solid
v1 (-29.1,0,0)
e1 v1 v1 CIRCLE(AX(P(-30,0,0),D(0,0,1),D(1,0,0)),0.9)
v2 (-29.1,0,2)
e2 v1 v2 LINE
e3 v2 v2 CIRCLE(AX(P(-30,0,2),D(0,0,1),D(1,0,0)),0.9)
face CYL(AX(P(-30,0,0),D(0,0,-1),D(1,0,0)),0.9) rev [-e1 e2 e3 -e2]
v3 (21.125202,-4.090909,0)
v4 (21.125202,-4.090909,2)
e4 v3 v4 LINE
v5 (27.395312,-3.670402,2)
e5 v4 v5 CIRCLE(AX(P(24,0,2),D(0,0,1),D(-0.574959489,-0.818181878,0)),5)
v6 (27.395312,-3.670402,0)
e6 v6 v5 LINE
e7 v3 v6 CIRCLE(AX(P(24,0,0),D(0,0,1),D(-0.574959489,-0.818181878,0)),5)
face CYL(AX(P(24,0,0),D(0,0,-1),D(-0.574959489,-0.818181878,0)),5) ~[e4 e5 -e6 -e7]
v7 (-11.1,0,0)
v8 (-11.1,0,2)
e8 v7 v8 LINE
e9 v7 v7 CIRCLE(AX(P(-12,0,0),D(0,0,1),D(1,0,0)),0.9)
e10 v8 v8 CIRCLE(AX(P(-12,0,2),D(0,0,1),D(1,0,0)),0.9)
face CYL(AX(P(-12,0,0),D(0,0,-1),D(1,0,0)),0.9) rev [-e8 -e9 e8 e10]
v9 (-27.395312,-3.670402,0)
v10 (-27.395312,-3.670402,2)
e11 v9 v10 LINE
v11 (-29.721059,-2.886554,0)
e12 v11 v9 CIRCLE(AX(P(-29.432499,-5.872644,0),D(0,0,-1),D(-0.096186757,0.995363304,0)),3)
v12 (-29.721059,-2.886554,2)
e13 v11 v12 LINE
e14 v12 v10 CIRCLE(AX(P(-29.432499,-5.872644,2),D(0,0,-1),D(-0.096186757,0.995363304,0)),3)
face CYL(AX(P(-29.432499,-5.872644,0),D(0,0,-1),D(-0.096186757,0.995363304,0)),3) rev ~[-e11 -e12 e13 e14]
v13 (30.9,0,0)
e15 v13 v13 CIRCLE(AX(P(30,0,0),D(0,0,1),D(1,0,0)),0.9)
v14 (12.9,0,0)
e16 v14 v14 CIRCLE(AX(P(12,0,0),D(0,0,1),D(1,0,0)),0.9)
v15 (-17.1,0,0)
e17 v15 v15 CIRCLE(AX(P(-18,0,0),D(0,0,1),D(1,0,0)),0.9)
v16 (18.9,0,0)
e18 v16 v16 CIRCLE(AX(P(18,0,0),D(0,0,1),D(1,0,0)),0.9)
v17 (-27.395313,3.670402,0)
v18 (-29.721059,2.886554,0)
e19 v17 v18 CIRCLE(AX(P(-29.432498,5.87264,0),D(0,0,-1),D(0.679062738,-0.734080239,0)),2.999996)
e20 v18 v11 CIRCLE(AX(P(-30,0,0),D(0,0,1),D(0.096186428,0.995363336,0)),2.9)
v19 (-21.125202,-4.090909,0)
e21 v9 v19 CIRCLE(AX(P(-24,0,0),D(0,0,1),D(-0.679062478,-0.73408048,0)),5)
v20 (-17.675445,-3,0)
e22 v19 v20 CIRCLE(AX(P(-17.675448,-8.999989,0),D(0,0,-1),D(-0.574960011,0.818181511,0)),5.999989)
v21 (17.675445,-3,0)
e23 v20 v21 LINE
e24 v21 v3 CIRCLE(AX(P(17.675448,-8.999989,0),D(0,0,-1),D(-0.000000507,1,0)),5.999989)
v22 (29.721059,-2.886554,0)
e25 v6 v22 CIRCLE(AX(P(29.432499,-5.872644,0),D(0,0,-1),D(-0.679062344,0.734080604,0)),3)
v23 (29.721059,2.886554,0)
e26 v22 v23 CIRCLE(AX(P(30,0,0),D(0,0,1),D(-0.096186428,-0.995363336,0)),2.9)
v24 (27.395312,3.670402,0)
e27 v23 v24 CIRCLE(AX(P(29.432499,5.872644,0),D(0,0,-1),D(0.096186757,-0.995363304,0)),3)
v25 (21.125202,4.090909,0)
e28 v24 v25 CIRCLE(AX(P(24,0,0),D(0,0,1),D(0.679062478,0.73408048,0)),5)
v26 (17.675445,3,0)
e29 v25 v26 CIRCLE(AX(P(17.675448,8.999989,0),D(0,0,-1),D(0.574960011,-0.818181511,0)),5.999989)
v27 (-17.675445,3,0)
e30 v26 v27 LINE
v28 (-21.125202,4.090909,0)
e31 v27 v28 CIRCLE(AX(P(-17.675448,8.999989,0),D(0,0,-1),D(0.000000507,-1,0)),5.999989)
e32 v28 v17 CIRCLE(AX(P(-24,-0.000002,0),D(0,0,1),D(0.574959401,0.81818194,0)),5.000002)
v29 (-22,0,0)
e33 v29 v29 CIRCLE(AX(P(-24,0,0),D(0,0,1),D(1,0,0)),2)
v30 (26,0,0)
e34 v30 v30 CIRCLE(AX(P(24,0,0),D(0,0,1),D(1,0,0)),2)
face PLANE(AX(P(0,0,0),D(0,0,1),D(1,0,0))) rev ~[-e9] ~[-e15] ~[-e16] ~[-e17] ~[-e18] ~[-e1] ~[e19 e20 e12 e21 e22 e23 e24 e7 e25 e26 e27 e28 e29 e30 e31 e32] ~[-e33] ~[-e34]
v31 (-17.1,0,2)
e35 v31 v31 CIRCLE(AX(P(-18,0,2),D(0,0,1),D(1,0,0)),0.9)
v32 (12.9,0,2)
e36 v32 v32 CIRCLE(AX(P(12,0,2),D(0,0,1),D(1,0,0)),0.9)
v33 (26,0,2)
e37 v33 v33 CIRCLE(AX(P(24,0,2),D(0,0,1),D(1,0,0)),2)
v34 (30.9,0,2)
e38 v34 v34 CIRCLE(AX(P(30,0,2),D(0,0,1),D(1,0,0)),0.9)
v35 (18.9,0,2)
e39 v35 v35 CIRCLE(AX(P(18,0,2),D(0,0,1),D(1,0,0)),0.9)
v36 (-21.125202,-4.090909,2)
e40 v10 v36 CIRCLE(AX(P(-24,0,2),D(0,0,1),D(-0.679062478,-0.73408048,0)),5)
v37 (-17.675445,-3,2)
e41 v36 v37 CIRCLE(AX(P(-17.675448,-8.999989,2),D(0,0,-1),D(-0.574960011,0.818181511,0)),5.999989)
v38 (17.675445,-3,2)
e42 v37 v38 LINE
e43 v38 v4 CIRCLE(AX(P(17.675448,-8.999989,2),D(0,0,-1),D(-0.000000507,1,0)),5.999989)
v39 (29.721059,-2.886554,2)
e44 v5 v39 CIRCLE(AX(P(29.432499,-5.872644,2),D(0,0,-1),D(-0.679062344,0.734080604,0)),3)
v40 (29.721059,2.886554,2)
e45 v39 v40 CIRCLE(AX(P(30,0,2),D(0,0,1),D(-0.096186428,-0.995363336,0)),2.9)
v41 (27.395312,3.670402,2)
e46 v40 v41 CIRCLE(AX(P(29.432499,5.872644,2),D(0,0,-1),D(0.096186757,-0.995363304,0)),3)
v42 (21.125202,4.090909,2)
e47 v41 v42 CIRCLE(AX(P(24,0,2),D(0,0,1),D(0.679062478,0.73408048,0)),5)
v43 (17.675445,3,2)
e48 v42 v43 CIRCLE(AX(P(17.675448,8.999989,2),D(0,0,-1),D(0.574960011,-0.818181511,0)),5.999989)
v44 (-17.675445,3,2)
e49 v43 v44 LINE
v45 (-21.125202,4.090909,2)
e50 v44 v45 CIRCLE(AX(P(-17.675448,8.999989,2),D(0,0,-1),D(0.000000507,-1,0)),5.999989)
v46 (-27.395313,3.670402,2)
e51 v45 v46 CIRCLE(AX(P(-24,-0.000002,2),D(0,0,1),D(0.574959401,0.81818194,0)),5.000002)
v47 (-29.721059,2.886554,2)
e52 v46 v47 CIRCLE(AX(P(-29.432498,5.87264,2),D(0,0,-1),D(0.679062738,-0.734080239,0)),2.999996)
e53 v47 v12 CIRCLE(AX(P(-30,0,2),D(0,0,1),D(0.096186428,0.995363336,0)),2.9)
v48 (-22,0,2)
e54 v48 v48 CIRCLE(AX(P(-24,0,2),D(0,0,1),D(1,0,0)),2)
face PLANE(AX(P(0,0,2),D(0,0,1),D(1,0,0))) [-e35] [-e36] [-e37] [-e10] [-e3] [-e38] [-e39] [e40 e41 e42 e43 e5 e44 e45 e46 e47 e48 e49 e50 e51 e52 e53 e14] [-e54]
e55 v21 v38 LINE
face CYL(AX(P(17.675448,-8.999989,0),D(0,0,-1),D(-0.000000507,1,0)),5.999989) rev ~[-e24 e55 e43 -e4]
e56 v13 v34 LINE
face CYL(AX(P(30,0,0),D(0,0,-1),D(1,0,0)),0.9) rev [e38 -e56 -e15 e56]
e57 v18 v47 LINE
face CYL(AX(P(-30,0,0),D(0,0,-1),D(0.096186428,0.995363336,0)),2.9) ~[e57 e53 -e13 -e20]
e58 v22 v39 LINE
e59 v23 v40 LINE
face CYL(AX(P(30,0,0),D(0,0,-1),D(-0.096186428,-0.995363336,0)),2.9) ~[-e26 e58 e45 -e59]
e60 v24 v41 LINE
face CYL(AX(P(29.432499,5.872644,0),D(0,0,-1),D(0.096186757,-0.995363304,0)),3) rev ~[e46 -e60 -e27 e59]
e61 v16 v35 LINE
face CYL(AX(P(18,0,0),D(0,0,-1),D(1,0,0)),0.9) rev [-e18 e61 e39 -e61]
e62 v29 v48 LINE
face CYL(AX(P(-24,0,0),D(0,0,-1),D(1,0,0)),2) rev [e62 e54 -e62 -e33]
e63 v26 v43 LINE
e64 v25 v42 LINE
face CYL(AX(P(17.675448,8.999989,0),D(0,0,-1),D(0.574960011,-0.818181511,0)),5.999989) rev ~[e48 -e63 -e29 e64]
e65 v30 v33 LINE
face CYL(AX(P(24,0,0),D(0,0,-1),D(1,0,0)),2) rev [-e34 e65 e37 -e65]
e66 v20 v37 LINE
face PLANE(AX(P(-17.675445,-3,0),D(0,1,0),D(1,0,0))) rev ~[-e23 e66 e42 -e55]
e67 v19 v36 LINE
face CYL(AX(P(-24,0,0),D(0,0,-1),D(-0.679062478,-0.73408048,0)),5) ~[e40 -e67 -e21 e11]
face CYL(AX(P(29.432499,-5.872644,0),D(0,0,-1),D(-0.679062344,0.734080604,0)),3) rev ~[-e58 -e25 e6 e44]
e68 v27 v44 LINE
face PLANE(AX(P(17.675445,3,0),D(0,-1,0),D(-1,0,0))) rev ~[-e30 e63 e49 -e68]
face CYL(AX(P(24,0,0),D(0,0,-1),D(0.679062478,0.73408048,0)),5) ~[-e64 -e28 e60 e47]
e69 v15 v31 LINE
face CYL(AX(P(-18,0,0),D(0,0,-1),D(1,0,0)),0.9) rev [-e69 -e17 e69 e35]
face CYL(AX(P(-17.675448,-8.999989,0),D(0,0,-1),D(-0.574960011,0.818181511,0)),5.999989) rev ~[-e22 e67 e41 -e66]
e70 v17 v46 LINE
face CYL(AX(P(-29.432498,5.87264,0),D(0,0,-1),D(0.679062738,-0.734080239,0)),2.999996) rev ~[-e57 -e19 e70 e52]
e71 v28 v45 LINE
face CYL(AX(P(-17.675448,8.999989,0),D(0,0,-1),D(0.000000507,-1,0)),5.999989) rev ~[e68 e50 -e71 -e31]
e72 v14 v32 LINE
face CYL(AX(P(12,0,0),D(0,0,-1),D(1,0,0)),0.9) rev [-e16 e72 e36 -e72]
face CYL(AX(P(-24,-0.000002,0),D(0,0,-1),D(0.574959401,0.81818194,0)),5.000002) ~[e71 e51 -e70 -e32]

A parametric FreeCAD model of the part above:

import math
import FreeCAD as App
import Part
import Sketcher
from FreeCAD import Vector

doc = App.newDocument("Part")
body = doc.addObject("PartDesign::Body", "Body")

# Sketch on XY plane
sketch1 = body.newObject("Sketcher::SketchObject", "Sketch")
sketch1.AttachmentSupport = (doc.getObject("XY_Plane"), [""])
sketch1.MapMode = "FlatFace"
sketch1.addGeometry(Part.LineSegment(Vector(17.7, 3, 0), Vector(-17.7, 3, 0)), False)
sketch1.addGeometry(Part.ArcOfCircle(Part.Circle(Vector(-17.7, 9, 0), Vector(0, 0, 1), 6), math.radians(-125), math.radians(-90)), False)
sketch1.addGeometry(Part.ArcOfCircle(Part.Circle(Vector(-24, 0, 0), Vector(0, 0, 1), 5), math.radians(55), math.radians(133)), False)
sketch1.addGeometry(Part.ArcOfCircle(Part.Circle(Vector(-29.4, 5.9, 0), Vector(0, 0, 1), 3), math.radians(-96), math.radians(-47)), False)
sketch1.addGeometry(Part.ArcOfCircle(Part.Circle(Vector(-30, 0, 0), Vector(0, 0, 1), 2.9), math.radians(84), math.radians(276)), False)
sketch1.addGeometry(Part.ArcOfCircle(Part.Circle(Vector(-29.4, -5.9, 0), Vector(0, 0, 1), 3), math.radians(47), math.radians(96)), False)
sketch1.addGeometry(Part.ArcOfCircle(Part.Circle(Vector(-24, 0, 0), Vector(0, 0, 1), 5), math.radians(-133), math.radians(-55)), False)
sketch1.addGeometry(Part.ArcOfCircle(Part.Circle(Vector(-17.7, -9, 0), Vector(0, 0, 1), 6), math.radians(90), math.radians(125)), False)
sketch1.addGeometry(Part.LineSegment(Vector(-17.7, -3, 0), Vector(17.7, -3, 0)), False)
sketch1.addGeometry(Part.ArcOfCircle(Part.Circle(Vector(17.7, -9, 0), Vector(0, 0, 1), 6), math.radians(55), math.radians(90)), False)
sketch1.addGeometry(Part.ArcOfCircle(Part.Circle(Vector(24, 0, 0), Vector(0, 0, 1), 5), math.radians(-125), math.radians(-47)), False)
sketch1.addGeometry(Part.ArcOfCircle(Part.Circle(Vector(29.4, -5.9, 0), Vector(0, 0, 1), 3), math.radians(84), math.radians(133)), False)
sketch1.addGeometry(Part.ArcOfCircle(Part.Circle(Vector(30, 0, 0), Vector(0, 0, 1), 2.9), math.radians(-96), math.radians(96)), False)
sketch1.addGeometry(Part.ArcOfCircle(Part.Circle(Vector(29.4, 5.9, 0), Vector(0, 0, 1), 3), math.radians(-133), math.radians(-84)), False)
sketch1.addGeometry(Part.ArcOfCircle(Part.Circle(Vector(24, 0, 0), Vector(0, 0, 1), 5), math.radians(47), math.radians(125)), False)
sketch1.addGeometry(Part.ArcOfCircle(Part.Circle(Vector(17.7, 9, 0), Vector(0, 0, 1), 6), math.radians(-90), math.radians(-55)), False)
sketch1.addGeometry(Part.Circle(Vector(-30, 0, 0), Vector(0, 0, 1), 0.9), False)
sketch1.addGeometry(Part.Circle(Vector(-24, 0, 0), Vector(0, 0, 1), 2), False)
sketch1.addGeometry(Part.Circle(Vector(-18, 0, 0), Vector(0, 0, 1), 0.9), False)
sketch1.addGeometry(Part.Circle(Vector(-12, 0, 0), Vector(0, 0, 1), 0.9), False)
sketch1.addGeometry(Part.Circle(Vector(12, 0, 0), Vector(0, 0, 1), 0.9), False)
sketch1.addGeometry(Part.Circle(Vector(18, 0, 0), Vector(0, 0, 1), 0.9), False)
sketch1.addGeometry(Part.Circle(Vector(24, 0, 0), Vector(0, 0, 1), 2), False)
sketch1.addGeometry(Part.Circle(Vector(30, 0, 0), Vector(0, 0, 1), 0.9), False)
sketch1.addConstraint(Sketcher.Constraint("Tangent", 0, 2, 1, 2))
sketch1.addConstraint(Sketcher.Constraint("Tangent", 1, 1, 2, 1))
sketch1.addConstraint(Sketcher.Constraint("Tangent", 2, 2, 3, 2))
sketch1.addConstraint(Sketcher.Constraint("Tangent", 3, 1, 4, 1))
sketch1.addConstraint(Sketcher.Constraint("Tangent", 4, 2, 5, 2))
sketch1.addConstraint(Sketcher.Constraint("Tangent", 5, 1, 6, 1))
sketch1.addConstraint(Sketcher.Constraint("Tangent", 6, 2, 7, 2))
sketch1.addConstraint(Sketcher.Constraint("Tangent", 7, 1, 8, 1))
sketch1.addConstraint(Sketcher.Constraint("Tangent", 8, 2, 9, 2))
sketch1.addConstraint(Sketcher.Constraint("Tangent", 9, 1, 10, 1))
sketch1.addConstraint(Sketcher.Constraint("Tangent", 10, 2, 11, 2))
sketch1.addConstraint(Sketcher.Constraint("Tangent", 11, 1, 12, 1))
sketch1.addConstraint(Sketcher.Constraint("Tangent", 12, 2, 13, 2))
sketch1.addConstraint(Sketcher.Constraint("Tangent", 13, 1, 14, 1))
sketch1.addConstraint(Sketcher.Constraint("Tangent", 14, 2, 15, 2))
sketch1.addConstraint(Sketcher.Constraint("Tangent", 15, 1, 0, 1))
sketch1.addConstraint(Sketcher.Constraint("Horizontal", 0))
sketch1.addConstraint(Sketcher.Constraint("Horizontal", 8))
sketch1.addConstraint(Sketcher.Constraint("Coincident", 6, 3, 2, 3))
sketch1.addConstraint(Sketcher.Constraint("Coincident", 14, 3, 10, 3))
sketch1.addConstraint(Sketcher.Constraint("Coincident", 16, 3, 4, 3))
sketch1.addConstraint(Sketcher.Constraint("Coincident", 17, 3, 2, 3))
sketch1.addConstraint(Sketcher.Constraint("Coincident", 22, 3, 10, 3))
sketch1.addConstraint(Sketcher.Constraint("Coincident", 23, 3, 12, 3))
sketch1.addConstraint(Sketcher.Constraint("Equal", 2, 6))
sketch1.addConstraint(Sketcher.Constraint("Equal", 1, 7))
sketch1.addConstraint(Sketcher.Constraint("Equal", 7, 9))
sketch1.addConstraint(Sketcher.Constraint("Equal", 6, 10))
sketch1.addConstraint(Sketcher.Constraint("Equal", 5, 11))
sketch1.addConstraint(Sketcher.Constraint("Equal", 4, 12))
sketch1.addConstraint(Sketcher.Constraint("Equal", 11, 13))
sketch1.addConstraint(Sketcher.Constraint("Equal", 10, 14))
sketch1.addConstraint(Sketcher.Constraint("Equal", 9, 15))
sketch1.addConstraint(Sketcher.Constraint("Equal", 16, 18))
sketch1.addConstraint(Sketcher.Constraint("Equal", 18, 19))
sketch1.addConstraint(Sketcher.Constraint("Equal", 19, 20))
sketch1.addConstraint(Sketcher.Constraint("Equal", 20, 21))
sketch1.addConstraint(Sketcher.Constraint("Equal", 17, 22))
sketch1.addConstraint(Sketcher.Constraint("Equal", 21, 23))
sketch1.addConstraint(Sketcher.Constraint("Symmetric", 1, 3, 9, 3, -1, 1))
sketch1.addConstraint(Sketcher.Constraint("Symmetric", 3, 3, 11, 3, -1, 1))
sketch1.addConstraint(Sketcher.Constraint("Symmetric", 4, 3, 12, 3, -1, 1))
sketch1.addConstraint(Sketcher.Constraint("Symmetric", 19, 3, 20, 3, -1, 1))
sketch1.addConstraint(Sketcher.Constraint("Symmetric", 18, 3, 21, 3, -1, 1))
sketch1.addConstraint(Sketcher.Constraint("Symmetric", 5, 3, 11, 3, -2))
sketch1.addConstraint(Sketcher.Constraint("PointOnObject", 18, 3, -1))
sketch1.addConstraint(Sketcher.Constraint("PointOnObject", 19, 3, -1))
sketch1.addConstraint(Sketcher.Constraint("Diameter", 17, 4.0))
sketch1.addConstraint(Sketcher.Constraint("Radius", 2, 5.000002))
sketch1.addConstraint(Sketcher.Constraint("Radius", 5, 3.0))
sketch1.addConstraint(Sketcher.Constraint("Diameter", 16, 1.8))
sketch1.addConstraint(Sketcher.Constraint("Radius", 4, 2.9))
sketch1.addConstraint(Sketcher.Constraint("DistanceX", 2, 3, -1, 1, 24.0))
sketch1.addConstraint(Sketcher.Constraint("DistanceX", 4, 3, -1, 1, 30.0))
sketch1.addConstraint(Sketcher.Constraint("DistanceX", 18, 3, -1, 1, 18.0))
sketch1.addConstraint(Sketcher.Constraint("DistanceX", 19, 3, -1, 1, 12.0))
sketch1.addConstraint(Sketcher.Constraint("DistanceY", -1, 1, 0, 2, 3.0))
sketch1.addConstraint(Sketcher.Constraint("Radius", 1, 5.999989))
pad1 = body.newObject("PartDesign::Pad", "Pad")
pad1.Profile = sketch1
pad1.Length = 2

doc.recompute()
